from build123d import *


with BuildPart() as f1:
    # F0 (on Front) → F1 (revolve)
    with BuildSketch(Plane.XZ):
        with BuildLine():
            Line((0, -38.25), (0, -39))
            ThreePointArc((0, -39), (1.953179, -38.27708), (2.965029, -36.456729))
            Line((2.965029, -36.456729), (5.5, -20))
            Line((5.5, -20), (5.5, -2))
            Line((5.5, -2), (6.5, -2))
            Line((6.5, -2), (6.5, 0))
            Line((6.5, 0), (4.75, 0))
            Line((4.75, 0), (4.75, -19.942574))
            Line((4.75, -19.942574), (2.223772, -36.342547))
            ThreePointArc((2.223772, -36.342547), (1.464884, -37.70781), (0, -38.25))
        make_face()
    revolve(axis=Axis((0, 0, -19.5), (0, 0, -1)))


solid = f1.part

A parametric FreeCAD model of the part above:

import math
import FreeCAD as App
import Part
import Sketcher

V = App.Vector
Q = App.Units.Quantity

doc = App.newDocument("Part")
body = doc.addObject("PartDesign::Body", "Body")

# Sketch on XZ plane
sketch1 = body.newObject("Sketcher::SketchObject", "Sketch")
sketch1.AttachmentSupport = (doc.getObject("XZ_Plane"), [""])
sketch1.MapMode = "FlatFace"
sketch1.addGeometry(Part.LineSegment(V(0, -38.2, 0), V(0, -39, 0)), False)
sketch1.addGeometry(Part.ArcOfCircle(Part.Circle(V(0, -36, 0), V(0, 0, 1), 3), math.radians(-90), math.radians(-9)), False)
sketch1.addGeometry(Part.LineSegment(V(3, -36.5, 0), V(5.5, -20, 0)), False)
sketch1.addGeometry(Part.LineSegment(V(5.5, -20, 0), V(5.5, -2, 0)), False)
sketch1.addGeometry(Part.LineSegment(V(5.5, -2, 0), V(6.5, -2, 0)), False)
sketch1.addGeometry(Part.LineSegment(V(6.5, -2, 0), V(6.5, 0, 0)), False)
sketch1.addGeometry(Part.LineSegment(V(6.5, 0, 0), V(4.8, 0, 0)), False)
sketch1.addGeometry(Part.LineSegment(V(4.8, 0, 0), V(4.8, -19.9, 0)), False)
sketch1.addGeometry(Part.LineSegment(V(4.8, -19.9, 0), V(2.2, -36.3, 0)), False)
sketch1.addGeometry(Part.ArcOfCircle(Part.Circle(V(0, -36, 0), V(0, 0, 1), 2.3), math.radians(-90), math.radians(-9)), False)
sketch1.addConstraint(Sketcher.Constraint("Coincident", 0, 2, 1, 1))
sketch1.addConstraint(Sketcher.Constraint("Tangent", 1, 2, 2, 1))
sketch1.addConstraint(Sketcher.Constraint("Coincident", 2, 2, 3, 1))
sketch1.addConstraint(Sketcher.Constraint("Coincident", 3, 2, 4, 1))
sketch1.addConstraint(Sketcher.Constraint("Coincident", 4, 2, 5, 1))
sketch1.addConstraint(Sketcher.Constraint("Coincident", 5, 2, 6, 1))
sketch1.addConstraint(Sketcher.Constraint("Coincident", 6, 2, 7, 1))
sketch1.addConstraint(Sketcher.Constraint("Coincident", 7, 2, 8, 1))
sketch1.addConstraint(Sketcher.Constraint("Tangent", 8, 2, 9, 2))
sketch1.addConstraint(Sketcher.Constraint("Coincident", 9, 1, 0, 1))
sketch1.addConstraint(Sketcher.Constraint("Vertical", 0))
sketch1.addConstraint(Sketcher.Constraint("Vertical", 3))
sketch1.addConstraint(Sketcher.Constraint("Horizontal", 4))
sketch1.addConstraint(Sketcher.Constraint("Vertical", 5))
sketch1.addConstraint(Sketcher.Constraint("Horizontal", 6))
sketch1.addConstraint(Sketcher.Constraint("Vertical", 7))
sketch1.addConstraint(Sketcher.Constraint("Coincident", 9, 3, 1, 3))
sketch1.addConstraint(Sketcher.Constraint("PointOnObject", 1, 3, -2))
sketch1.addConstraint(Sketcher.Constraint("PointOnObject", 0, 2, -2))
sketch1.addConstraint(Sketcher.Constraint("PointOnObject", 5, 2, -1))
sketch1.addConstraint(Sketcher.Constraint("Parallel", 2, 8))
sketch1.addConstraint(Sketcher.Constraint("Radius", 1, Q("2.999999 mm")))
sketch1.addConstraint(Sketcher.Constraint("DistanceX", 4, 1, 4, 2, Q("1 mm")))
sketch1.addConstraint(Sketcher.Constraint("DistanceY", 3, 1, 3, 2, Q("18 mm")))
sketch1.addConstraint(Sketcher.Constraint("DistanceY", 5, 1, 5, 2, Q("2 mm")))
sketch1.addConstraint(Sketcher.Constraint("Radius", 9, Q("2.25 mm")))
sketch1.addConstraint(Sketcher.Constraint("DistanceY", 1, 3, -1, 1, Q("36.000001 mm")))
sketch1.addConstraint(Sketcher.Constraint("DistanceX", 6, 2, 6, 1, Q("1.75 mm")))
sketch1.addConstraint(Sketcher.Constraint("DistanceX", -1, 1, 2, 2, Q("5.5 mm")))
revolution = body.newObject("PartDesign::Revolution", "Revolution")
revolution.Profile = sketch1
revolution.ReferenceAxis = (sketch1, ["V_Axis"])
revolution.Angle = 360

doc.recompute()
